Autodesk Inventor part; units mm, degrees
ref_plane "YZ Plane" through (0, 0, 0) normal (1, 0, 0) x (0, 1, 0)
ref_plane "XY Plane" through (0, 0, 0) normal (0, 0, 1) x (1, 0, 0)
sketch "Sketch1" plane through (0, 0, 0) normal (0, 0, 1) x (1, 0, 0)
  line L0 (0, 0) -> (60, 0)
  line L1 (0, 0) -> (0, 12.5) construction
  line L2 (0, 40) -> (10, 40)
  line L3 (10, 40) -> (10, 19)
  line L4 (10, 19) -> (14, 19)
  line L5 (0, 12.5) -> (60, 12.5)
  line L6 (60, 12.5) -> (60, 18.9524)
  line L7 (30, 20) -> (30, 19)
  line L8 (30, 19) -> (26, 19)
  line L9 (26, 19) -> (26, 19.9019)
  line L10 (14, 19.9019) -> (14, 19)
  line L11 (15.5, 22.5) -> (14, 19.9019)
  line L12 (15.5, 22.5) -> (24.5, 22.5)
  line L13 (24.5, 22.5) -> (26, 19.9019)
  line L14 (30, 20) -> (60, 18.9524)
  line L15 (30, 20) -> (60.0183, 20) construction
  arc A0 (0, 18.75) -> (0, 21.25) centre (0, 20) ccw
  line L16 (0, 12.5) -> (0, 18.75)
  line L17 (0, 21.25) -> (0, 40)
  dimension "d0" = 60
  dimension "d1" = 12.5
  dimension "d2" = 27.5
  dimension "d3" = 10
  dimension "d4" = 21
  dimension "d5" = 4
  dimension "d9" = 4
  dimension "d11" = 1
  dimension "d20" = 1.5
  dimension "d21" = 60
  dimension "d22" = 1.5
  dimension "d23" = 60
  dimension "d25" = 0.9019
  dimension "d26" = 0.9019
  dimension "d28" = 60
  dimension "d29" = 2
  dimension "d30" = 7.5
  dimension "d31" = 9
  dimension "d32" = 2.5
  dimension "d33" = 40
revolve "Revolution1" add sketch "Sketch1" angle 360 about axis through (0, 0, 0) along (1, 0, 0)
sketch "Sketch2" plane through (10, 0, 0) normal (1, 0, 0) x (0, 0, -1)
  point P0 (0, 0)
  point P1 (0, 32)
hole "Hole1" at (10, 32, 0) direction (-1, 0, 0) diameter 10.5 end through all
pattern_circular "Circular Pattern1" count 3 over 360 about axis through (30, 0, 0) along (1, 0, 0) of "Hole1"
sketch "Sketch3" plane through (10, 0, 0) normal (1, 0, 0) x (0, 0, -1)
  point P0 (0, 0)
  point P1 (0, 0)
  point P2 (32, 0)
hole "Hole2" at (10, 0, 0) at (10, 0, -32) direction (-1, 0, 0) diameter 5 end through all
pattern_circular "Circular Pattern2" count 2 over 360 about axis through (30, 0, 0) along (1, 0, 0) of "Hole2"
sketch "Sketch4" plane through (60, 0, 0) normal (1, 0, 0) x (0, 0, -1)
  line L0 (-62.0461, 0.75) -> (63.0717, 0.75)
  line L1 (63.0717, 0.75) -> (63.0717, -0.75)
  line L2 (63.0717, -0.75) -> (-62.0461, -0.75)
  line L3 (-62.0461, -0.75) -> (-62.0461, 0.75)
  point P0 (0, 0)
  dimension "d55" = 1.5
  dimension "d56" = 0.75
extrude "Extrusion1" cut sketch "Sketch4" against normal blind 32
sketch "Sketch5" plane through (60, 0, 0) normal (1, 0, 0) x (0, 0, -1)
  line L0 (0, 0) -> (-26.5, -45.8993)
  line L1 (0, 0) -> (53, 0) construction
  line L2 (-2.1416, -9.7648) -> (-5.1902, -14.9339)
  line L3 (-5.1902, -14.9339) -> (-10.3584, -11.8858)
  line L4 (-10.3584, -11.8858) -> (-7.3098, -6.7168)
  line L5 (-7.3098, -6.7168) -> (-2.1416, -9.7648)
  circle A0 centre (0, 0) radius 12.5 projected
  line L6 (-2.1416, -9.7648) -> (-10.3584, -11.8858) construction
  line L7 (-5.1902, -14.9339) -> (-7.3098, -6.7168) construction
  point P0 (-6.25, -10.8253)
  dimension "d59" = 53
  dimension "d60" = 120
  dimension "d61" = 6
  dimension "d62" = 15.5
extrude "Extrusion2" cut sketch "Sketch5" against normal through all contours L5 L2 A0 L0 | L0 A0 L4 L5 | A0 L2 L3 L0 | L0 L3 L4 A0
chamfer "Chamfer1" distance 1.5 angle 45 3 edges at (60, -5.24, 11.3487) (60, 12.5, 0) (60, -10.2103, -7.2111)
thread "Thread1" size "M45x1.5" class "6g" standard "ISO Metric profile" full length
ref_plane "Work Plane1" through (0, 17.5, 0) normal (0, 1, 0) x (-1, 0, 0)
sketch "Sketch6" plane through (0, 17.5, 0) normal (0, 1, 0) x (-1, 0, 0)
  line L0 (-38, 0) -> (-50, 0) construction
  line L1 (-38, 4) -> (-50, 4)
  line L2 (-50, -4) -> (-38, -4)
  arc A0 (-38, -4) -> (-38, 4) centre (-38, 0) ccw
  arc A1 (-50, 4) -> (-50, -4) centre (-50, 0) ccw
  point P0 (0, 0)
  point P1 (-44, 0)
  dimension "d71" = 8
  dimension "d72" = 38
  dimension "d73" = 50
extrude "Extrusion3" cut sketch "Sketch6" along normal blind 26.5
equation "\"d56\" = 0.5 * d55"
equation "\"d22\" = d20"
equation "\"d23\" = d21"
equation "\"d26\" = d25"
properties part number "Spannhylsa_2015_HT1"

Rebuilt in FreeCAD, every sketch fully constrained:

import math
import FreeCAD as App
import Part
import Sketcher

V = App.Vector
Q = App.Units.Quantity


def edges_at(feature, points):
    """Names of the edges that pass closest to the given points."""
    edges = feature.Shape.Edges
    near = lambda p: min(range(len(edges)), key=lambda i: edges[i].distToShape(Part.Vertex(*p))[0])
    return sorted({f"Edge{near(p) + 1}" for p in points})


def add_polygon(sketch, points):
    """Adds a closed chain of lines whose ends are joined by coincident constraints."""
    first, n = sketch.GeometryCount, len(points)
    for a, b in zip(points, points[1:] + points[:1]):
        sketch.addGeometry(Part.LineSegment(App.Vector(*a, 0), App.Vector(*b, 0)), False)
    for i in range(n):
        sketch.addConstraint(Sketcher.Constraint("Coincident", first + i, 2, first + (i + 1) % n, 1))

doc = App.newDocument("Part")
params = doc.addObject("Spreadsheet::Sheet", "Params")
for row, (alias, value) in enumerate([
    ("sketch1_width", "10 mm"),
    ("sketch1_width2", "60 mm"),
    ("sketch1_width3", "4 mm"),
    ("sketch1_width4", "9 mm"),
    ("sketch1_height", "1 mm"),
    ("revolution_angle", "360 deg"),
    ("sketch2_diameter", "10.5 mm"),
    ("hole_diameter", "10.5 mm"),
    ("sketch3_diameter", "5 mm"),
    ("hole2_diameter", "5 mm"),
    ("sketch4_width", "1.5 mm"),
    ("pocket1_length", "32 mm"),
    ("sketch5_length", "6 mm"),
    ("chamfer_size", "1.5 mm"),
    ("sketch6_radius", "4 mm"),
    ("pocket3_length", "26.5 mm"),
], start=1):
    params.set(f"A{row}", alias)
    params.set(f"B{row}", "=" + value)
    params.setAlias(f"B{row}", alias)

body = doc.addObject("PartDesign::Body", "Body")

# Sketch on XY plane
sketch1 = body.newObject("Sketcher::SketchObject", "Sketch")
sketch1.AttachmentSupport = (doc.getObject("XY_Plane"), [""])
sketch1.MapMode = "FlatFace"
sketch1.addGeometry([
    Part.LineSegment(V(10, 40, 0), V(0, 40, 0)),  # 0
    Part.LineSegment(V(0, 40, 0), V(0, 21.2, 0)),  # 1
    Part.ArcOfCircle(Part.Circle(V(0, 20, 0), V(0, 0, 1), 1.2), math.radians(-90), math.radians(90)),  # 2
    Part.LineSegment(V(0, 18.8, 0), V(0, 12.5, 0)),  # 3
    Part.LineSegment(V(0, 12.5, 0), V(60, 12.5, 0)),  # 4
    Part.LineSegment(V(60, 12.5, 0), V(60, 19, 0)),  # 5
    Part.LineSegment(V(60, 19, 0), V(30, 20, 0)),  # 6
    Part.LineSegment(V(30, 20, 0), V(30, 19, 0)),  # 7
    Part.LineSegment(V(30, 19, 0), V(26, 19, 0)),  # 8
    Part.LineSegment(V(26, 19, 0), V(26, 19.9, 0)),  # 9
    Part.LineSegment(V(26, 19.9, 0), V(24.5, 22.5, 0)),  # 10
    Part.LineSegment(V(24.5, 22.5, 0), V(15.5, 22.5, 0)),  # 11
    Part.LineSegment(V(15.5, 22.5, 0), V(14, 19.9, 0)),  # 12
    Part.LineSegment(V(14, 19.9, 0), V(14, 19, 0)),  # 13
    Part.LineSegment(V(14, 19, 0), V(10, 19, 0)),  # 14
    Part.LineSegment(V(10, 19, 0), V(10, 40, 0)),  # 15
], False)
sketch1.addConstraint([
    Sketcher.Constraint("Coincident", 0, 2, 1, 1),
    Sketcher.Constraint("Coincident", 1, 2, 2, 2),
    Sketcher.Constraint("Coincident", 2, 1, 3, 1),
    Sketcher.Constraint("Coincident", 3, 2, 4, 1),
    Sketcher.Constraint("Coincident", 4, 2, 5, 1),
    Sketcher.Constraint("Coincident", 5, 2, 6, 1),
    Sketcher.Constraint("Coincident", 6, 2, 7, 1),
    Sketcher.Constraint("Coincident", 7, 2, 8, 1),
    Sketcher.Constraint("Coincident", 8, 2, 9, 1),
    Sketcher.Constraint("Coincident", 9, 2, 10, 1),
    Sketcher.Constraint("Coincident", 10, 2, 11, 1),
    Sketcher.Constraint("Coincident", 11, 2, 12, 1),
    Sketcher.Constraint("Coincident", 12, 2, 13, 1),
    Sketcher.Constraint("Coincident", 13, 2, 14, 1),
    Sketcher.Constraint("Coincident", 14, 2, 15, 1),
    Sketcher.Constraint("Coincident", 15, 2, 0, 1),
    Sketcher.Constraint("Horizontal", 0),
    Sketcher.Constraint("Vertical", 1),
    Sketcher.Constraint("Vertical", 3),
    Sketcher.Constraint("Horizontal", 4),
    Sketcher.Constraint("Vertical", 5),
    Sketcher.Constraint("Vertical", 7),
    Sketcher.Constraint("Horizontal", 8),
    Sketcher.Constraint("Vertical", 9),
    Sketcher.Constraint("Horizontal", 11),
    Sketcher.Constraint("Vertical", 13),
    Sketcher.Constraint("Horizontal", 14),
    Sketcher.Constraint("Vertical", 15),
    Sketcher.Constraint("PointOnObject", 2, 3, -2),
    Sketcher.Constraint("PointOnObject", 0, 2, -2),
    Sketcher.Constraint("PointOnObject", 2, 1, -2),
    Sketcher.Constraint("Horizontal", 2, 3, 6, 2),
    Sketcher.Constraint("Horizontal", 9, 2, 12, 2),
    Sketcher.Constraint("Horizontal", 8, 2, 13, 2),
    Sketcher.Constraint("Equal", 8, 14),
    Sketcher.Constraint("Equal", 10, 12),
    Sketcher.Constraint("DistanceX", 0, 2, 0, 1, Q("10 mm")),
    Sketcher.Constraint("DistanceX", 4, 1, 4, 2, Q("60 mm")),
    Sketcher.Constraint("DistanceX", 8, 2, 8, 1, Q("4 mm")),
    Sketcher.Constraint("DistanceX", 11, 2, 11, 1, Q("9 mm")),
    Sketcher.Constraint("DistanceY", 7, 2, 7, 1, Q("1 mm")),
    Sketcher.Constraint("DistanceY", 15, 1, 15, 2, Q("21 mm")),
    Sketcher.Constraint("Radius", 2, Q("1.25 mm")),
    Sketcher.Constraint("DistanceY", -1, 1, 0, 2, Q("40 mm")),
    Sketcher.Constraint("DistanceY", -1, 1, 3, 2, Q("12.5 mm")),
    Sketcher.Constraint("DistanceX", 10, 2, 9, 2, Q("1.5 mm")),
    Sketcher.Constraint("DistanceY", 6, 2, 10, 2, Q("2.5 mm")),
    Sketcher.Constraint("DistanceY", 9, 1, 9, 2, Q("0.902 mm")),
    Sketcher.Constraint("Angle", 6, Q("178 deg")),
])
sketch1.setExpression("Constraints[36]", "Params.sketch1_width")
sketch1.setExpression("Constraints[37]", "Params.sketch1_width2")
sketch1.setExpression("Constraints[38]", "Params.sketch1_width3")
sketch1.setExpression("Constraints[39]", "Params.sketch1_width4")
sketch1.setExpression("Constraints[40]", "Params.sketch1_height")
revolution = body.newObject("PartDesign::Revolution", "Revolution")
revolution.Profile = sketch1
revolution.ReferenceAxis = (sketch1, ["H_Axis"])
revolution.setExpression("Angle", "Params.revolution_angle")

# Sketch on YZ plane
sketch2 = body.newObject("Sketcher::SketchObject", "Sketch001")
sketch2.AttachmentSupport = (doc.getObject("YZ_Plane"), [""])
sketch2.MapMode = "FlatFace"
sketch2.AttachmentOffset = App.Placement(V(0, 0, 10), App.Rotation())
sketch2.addGeometry(Part.Circle(V(32, 0, 0), V(0, 0, 1), 5), False)
sketch2.addConstraint([
    Sketcher.Constraint("PointOnObject", 0, 3, -1),
    Sketcher.Constraint("Diameter", 0, Q("10.5 mm")),
    Sketcher.Constraint("DistanceX", -1, 1, 0, 3, Q("32 mm")),
])
sketch2.setExpression("Constraints[1]", "Params.sketch2_diameter")
doc.recompute()
hole = body.newObject("PartDesign::Hole", "Hole")
hole.Profile = sketch2
hole.ThreadType = "None"
hole.setExpression("Diameter", "Params.hole_diameter")
hole.DepthType = "ThroughAll"
doc.recompute()

polarpattern = body.newObject("PartDesign::PolarPattern", "PolarPattern")
polarpattern.Originals = [hole]
polarpattern.Axis = (doc.getObject("X_Axis"), [""])
polarpattern.Angle = 360
polarpattern.Occurrences = 3
body.Tip = polarpattern

# Sketch on YZ plane
sketch3 = body.newObject("Sketcher::SketchObject", "Sketch002")
sketch3.AttachmentSupport = (doc.getObject("YZ_Plane"), [""])
sketch3.MapMode = "FlatFace"
sketch3.AttachmentOffset = App.Placement(V(0, 0, 10), App.Rotation())
sketch3.addGeometry([
    Part.Circle(V(0, 0, 0), V(0, 0, 1), 2.5),
    Part.Circle(V(0, -32, 0), V(0, 0, 1), 2.5),
], False)
sketch3.addConstraint([
    Sketcher.Constraint("Coincident", 0, 3, -1, 1),
    Sketcher.Constraint("Equal", 0, 1),
    Sketcher.Constraint("PointOnObject", 1, 3, -2),
    Sketcher.Constraint("Diameter", 0, Q("5 mm")),
    Sketcher.Constraint("DistanceY", 1, 3, -1, 1, Q("32 mm")),
])
sketch3.setExpression("Constraints[3]", "Params.sketch3_diameter")
doc.recompute()
hole2 = body.newObject("PartDesign::Hole", "Hole001")
hole2.Profile = sketch3
hole2.ThreadType = "None"
hole2.setExpression("Diameter", "Params.hole2_diameter")
hole2.DepthType = "ThroughAll"
doc.recompute()

polarpattern2 = body.newObject("PartDesign::PolarPattern", "PolarPattern001")
polarpattern2.Originals = [hole2]
polarpattern2.Axis = (doc.getObject("X_Axis"), [""])
polarpattern2.Angle = 360
polarpattern2.Occurrences = 2
body.Tip = polarpattern2

# Sketch on YZ plane
sketch4 = body.newObject("Sketcher::SketchObject", "Sketch003")
sketch4.AttachmentSupport = (doc.getObject("YZ_Plane"), [""])
sketch4.MapMode = "FlatFace"
sketch4.AttachmentOffset = App.Placement(V(0, 0, 60), App.Rotation())
add_polygon(sketch4, [(0.8, -63.1), (0.8, 62), (-0.8, 62), (-0.8, -63.1)])  # lines 0-3
sketch4.addConstraint([
    Sketcher.Constraint("Vertical", 0),
    Sketcher.Constraint("Horizontal", 1),
    Sketcher.Constraint("Vertical", 2),
    Sketcher.Constraint("Horizontal", 3),
    Sketcher.Constraint("DistanceX", 1, 2, 1, 1, Q("1.5 mm")),
    Sketcher.Constraint("DistanceX", -1, 1, 0, 2, Q("0.75 mm")),
    Sketcher.Constraint("DistanceY", 0, 1, 0, 2, Q("125.1178 mm")),
    Sketcher.Constraint("DistanceY", -1, 1, 0, 2, Q("62.046 mm")),
])
sketch4.setExpression("Constraints[8]", "Params.sketch4_width")
pocket1 = body.newObject("PartDesign::Pocket", "Pocket")
pocket1.Profile = sketch4
pocket1.setExpression("Length", "Params.pocket1_length")

# Sketch on YZ plane
sketch5 = body.newObject("Sketcher::SketchObject", "Sketch004")
sketch5.AttachmentSupport = (doc.getObject("YZ_Plane"), [""])
sketch5.MapMode = "FlatFace"
sketch5.AttachmentOffset = App.Placement(V(0, 0, 60), App.Rotation())
add_polygon(sketch5, [(-10, 2), (-7, 7), (-12, 10), (-15, 5)])  # lines 0-3
sketch5.addConstraint([
    Sketcher.Constraint("Perpendicular", 0, 1),
    Sketcher.Constraint("Perpendicular", 1, 2),
    Sketcher.Constraint("Perpendicular", 2, 3),
    Sketcher.Constraint("Distance", 0, Q("6 mm")),
    Sketcher.Constraint("Angle", 0, Q("59.4696 deg")),
    Sketcher.Constraint("Distance", 1, Q("6.001 mm")),
    Sketcher.Constraint("DistanceX", 2, 2, -1, 1, Q("14.934 mm")),
    Sketcher.Constraint("DistanceY", -1, 1, 0, 2, Q("7.3098 mm")),
])
sketch5.setExpression("Constraints[7]", "Params.sketch5_length")
pocket2 = body.newObject("PartDesign::Pocket", "Pocket001")
pocket2.Profile = sketch5
pocket2.Type = "ThroughAll"
doc.recompute()

chamfer = body.newObject("PartDesign::Chamfer", "Chamfer")
chamfer.Base = (pocket2, edges_at(pocket2, [(60, -5.24, 11.349), (60, 12.5, 0), (60, -10.21, -7.211)]))
chamfer.setExpression("Size", "Params.chamfer_size")

# Sketch on XZ plane
sketch6 = body.newObject("Sketcher::SketchObject", "Sketch005")
sketch6.AttachmentSupport = (doc.getObject("XZ_Plane"), [""])
sketch6.MapMode = "FlatFace"
sketch6.AttachmentOffset = App.Placement(V(0, 0, -17.5), App.Rotation())
sketch6.addGeometry([
    Part.ArcOfCircle(Part.Circle(V(38, 0, 0), V(0, 0, 1), 4), math.radians(90), math.radians(270)),
    Part.LineSegment(V(38, 4, 0), V(50, 4, 0)),
    Part.ArcOfCircle(Part.Circle(V(50, 0, 0), V(0, 0, 1), 4), math.radians(-90), math.radians(90)),
    Part.LineSegment(V(50, -4, 0), V(38, -4, 0)),
], False)
sketch6.addConstraint([
    Sketcher.Constraint("Tangent", 0, 1, 1, 1),
    Sketcher.Constraint("Tangent", 1, 2, 2, 2),
    Sketcher.Constraint("Tangent", 2, 1, 3, 1),
    Sketcher.Constraint("Tangent", 3, 2, 0, 2),
    Sketcher.Constraint("Horizontal", 1),
    Sketcher.Constraint("Horizontal", 3),
    Sketcher.Constraint("PointOnObject", 0, 3, -1),
    Sketcher.Constraint("Radius", 0, Q("4 mm")),
    Sketcher.Constraint("DistanceX", -1, 1, 0, 3, Q("38 mm")),
    Sketcher.Constraint("DistanceX", -1, 1, 2, 3, Q("50 mm")),
])
sketch6.setExpression("Constraints[7]", "Params.sketch6_radius")
pocket3 = body.newObject("PartDesign::Pocket", "Pocket002")
pocket3.Profile = sketch6
pocket3.setExpression("Length", "Params.pocket3_length")

doc.recompute()
